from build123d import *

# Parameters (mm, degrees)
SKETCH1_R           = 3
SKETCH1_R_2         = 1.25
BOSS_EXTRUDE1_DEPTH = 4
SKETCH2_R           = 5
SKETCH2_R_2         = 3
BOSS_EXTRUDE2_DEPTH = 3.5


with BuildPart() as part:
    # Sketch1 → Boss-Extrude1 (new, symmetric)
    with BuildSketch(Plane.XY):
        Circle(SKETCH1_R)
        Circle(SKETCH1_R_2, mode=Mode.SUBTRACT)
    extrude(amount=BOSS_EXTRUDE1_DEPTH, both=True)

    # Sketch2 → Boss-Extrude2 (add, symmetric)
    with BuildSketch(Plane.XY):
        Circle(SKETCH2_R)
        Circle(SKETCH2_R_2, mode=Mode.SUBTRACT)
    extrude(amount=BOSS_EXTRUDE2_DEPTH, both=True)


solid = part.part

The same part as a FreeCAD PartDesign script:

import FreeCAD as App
import Part
import Sketcher
Q = App.Units.Quantity

doc = App.newDocument("Part")
params = doc.addObject("Spreadsheet::Sheet", "Params")
for row, (alias, value) in enumerate([
    ("sketch1_diameter", "6 mm"),
    ("sketch1_diameter2", "2.5 mm"),
    ("pad1_length", "8 mm"),
    ("sketch2_diameter", "10 mm"),
    ("sketch2_diameter2", "6 mm"),
    ("pad2_length", "7 mm"),
], start=1):
    params.set(f"A{row}", alias)
    params.set(f"B{row}", "=" + value)
    params.setAlias(f"B{row}", alias)

body = doc.addObject("PartDesign::Body", "Body")

# Sketch on XY plane
sketch1 = body.newObject("Sketcher::SketchObject", "Sketch")
sketch1.AttachmentSupport = (doc.getObject("XY_Plane"), [""])
sketch1.MapMode = "FlatFace"
sketch1.addGeometry([
    Part.Circle(App.Vector(0, 0, 0), App.Vector(0, 0, 1), 3),
    Part.Circle(App.Vector(0, 0, 0), App.Vector(0, 0, 1), 1.25),
], False)
sketch1.addConstraint([
    Sketcher.Constraint("Coincident", 0, 3, -1, 1),
    Sketcher.Constraint("Coincident", 1, 3, -1, 1),
    Sketcher.Constraint("Diameter", 0, Q("6 mm")),
    Sketcher.Constraint("Diameter", 1, Q("2.5 mm")),
])
sketch1.setExpression("Constraints[2]", "Params.sketch1_diameter")
sketch1.setExpression("Constraints[3]", "Params.sketch1_diameter2")
pad1 = body.newObject("PartDesign::Pad", "Pad")
pad1.Profile = sketch1
pad1.setExpression("Length", "Params.pad1_length")
pad1.Midplane = True

# Sketch on XY plane
sketch2 = body.newObject("Sketcher::SketchObject", "Sketch001")
sketch2.AttachmentSupport = (doc.getObject("XY_Plane"), [""])
sketch2.MapMode = "FlatFace"
sketch2.addGeometry([
    Part.Circle(App.Vector(0, 0, 0), App.Vector(0, 0, 1), 5),
    Part.Circle(App.Vector(0, 0, 0), App.Vector(0, 0, 1), 3),
], False)
sketch2.addConstraint([
    Sketcher.Constraint("Coincident", 0, 3, -1, 1),
    Sketcher.Constraint("Coincident", 1, 3, -1, 1),
    Sketcher.Constraint("Diameter", 0, Q("10 mm")),
    Sketcher.Constraint("Diameter", 1, Q("6 mm")),
])
sketch2.setExpression("Constraints[2]", "Params.sketch2_diameter")
sketch2.setExpression("Constraints[3]", "Params.sketch2_diameter2")
pad2 = body.newObject("PartDesign::Pad", "Pad001")
pad2.Profile = sketch2
pad2.setExpression("Length", "Params.pad2_length")
pad2.Midplane = True

doc.recompute()
